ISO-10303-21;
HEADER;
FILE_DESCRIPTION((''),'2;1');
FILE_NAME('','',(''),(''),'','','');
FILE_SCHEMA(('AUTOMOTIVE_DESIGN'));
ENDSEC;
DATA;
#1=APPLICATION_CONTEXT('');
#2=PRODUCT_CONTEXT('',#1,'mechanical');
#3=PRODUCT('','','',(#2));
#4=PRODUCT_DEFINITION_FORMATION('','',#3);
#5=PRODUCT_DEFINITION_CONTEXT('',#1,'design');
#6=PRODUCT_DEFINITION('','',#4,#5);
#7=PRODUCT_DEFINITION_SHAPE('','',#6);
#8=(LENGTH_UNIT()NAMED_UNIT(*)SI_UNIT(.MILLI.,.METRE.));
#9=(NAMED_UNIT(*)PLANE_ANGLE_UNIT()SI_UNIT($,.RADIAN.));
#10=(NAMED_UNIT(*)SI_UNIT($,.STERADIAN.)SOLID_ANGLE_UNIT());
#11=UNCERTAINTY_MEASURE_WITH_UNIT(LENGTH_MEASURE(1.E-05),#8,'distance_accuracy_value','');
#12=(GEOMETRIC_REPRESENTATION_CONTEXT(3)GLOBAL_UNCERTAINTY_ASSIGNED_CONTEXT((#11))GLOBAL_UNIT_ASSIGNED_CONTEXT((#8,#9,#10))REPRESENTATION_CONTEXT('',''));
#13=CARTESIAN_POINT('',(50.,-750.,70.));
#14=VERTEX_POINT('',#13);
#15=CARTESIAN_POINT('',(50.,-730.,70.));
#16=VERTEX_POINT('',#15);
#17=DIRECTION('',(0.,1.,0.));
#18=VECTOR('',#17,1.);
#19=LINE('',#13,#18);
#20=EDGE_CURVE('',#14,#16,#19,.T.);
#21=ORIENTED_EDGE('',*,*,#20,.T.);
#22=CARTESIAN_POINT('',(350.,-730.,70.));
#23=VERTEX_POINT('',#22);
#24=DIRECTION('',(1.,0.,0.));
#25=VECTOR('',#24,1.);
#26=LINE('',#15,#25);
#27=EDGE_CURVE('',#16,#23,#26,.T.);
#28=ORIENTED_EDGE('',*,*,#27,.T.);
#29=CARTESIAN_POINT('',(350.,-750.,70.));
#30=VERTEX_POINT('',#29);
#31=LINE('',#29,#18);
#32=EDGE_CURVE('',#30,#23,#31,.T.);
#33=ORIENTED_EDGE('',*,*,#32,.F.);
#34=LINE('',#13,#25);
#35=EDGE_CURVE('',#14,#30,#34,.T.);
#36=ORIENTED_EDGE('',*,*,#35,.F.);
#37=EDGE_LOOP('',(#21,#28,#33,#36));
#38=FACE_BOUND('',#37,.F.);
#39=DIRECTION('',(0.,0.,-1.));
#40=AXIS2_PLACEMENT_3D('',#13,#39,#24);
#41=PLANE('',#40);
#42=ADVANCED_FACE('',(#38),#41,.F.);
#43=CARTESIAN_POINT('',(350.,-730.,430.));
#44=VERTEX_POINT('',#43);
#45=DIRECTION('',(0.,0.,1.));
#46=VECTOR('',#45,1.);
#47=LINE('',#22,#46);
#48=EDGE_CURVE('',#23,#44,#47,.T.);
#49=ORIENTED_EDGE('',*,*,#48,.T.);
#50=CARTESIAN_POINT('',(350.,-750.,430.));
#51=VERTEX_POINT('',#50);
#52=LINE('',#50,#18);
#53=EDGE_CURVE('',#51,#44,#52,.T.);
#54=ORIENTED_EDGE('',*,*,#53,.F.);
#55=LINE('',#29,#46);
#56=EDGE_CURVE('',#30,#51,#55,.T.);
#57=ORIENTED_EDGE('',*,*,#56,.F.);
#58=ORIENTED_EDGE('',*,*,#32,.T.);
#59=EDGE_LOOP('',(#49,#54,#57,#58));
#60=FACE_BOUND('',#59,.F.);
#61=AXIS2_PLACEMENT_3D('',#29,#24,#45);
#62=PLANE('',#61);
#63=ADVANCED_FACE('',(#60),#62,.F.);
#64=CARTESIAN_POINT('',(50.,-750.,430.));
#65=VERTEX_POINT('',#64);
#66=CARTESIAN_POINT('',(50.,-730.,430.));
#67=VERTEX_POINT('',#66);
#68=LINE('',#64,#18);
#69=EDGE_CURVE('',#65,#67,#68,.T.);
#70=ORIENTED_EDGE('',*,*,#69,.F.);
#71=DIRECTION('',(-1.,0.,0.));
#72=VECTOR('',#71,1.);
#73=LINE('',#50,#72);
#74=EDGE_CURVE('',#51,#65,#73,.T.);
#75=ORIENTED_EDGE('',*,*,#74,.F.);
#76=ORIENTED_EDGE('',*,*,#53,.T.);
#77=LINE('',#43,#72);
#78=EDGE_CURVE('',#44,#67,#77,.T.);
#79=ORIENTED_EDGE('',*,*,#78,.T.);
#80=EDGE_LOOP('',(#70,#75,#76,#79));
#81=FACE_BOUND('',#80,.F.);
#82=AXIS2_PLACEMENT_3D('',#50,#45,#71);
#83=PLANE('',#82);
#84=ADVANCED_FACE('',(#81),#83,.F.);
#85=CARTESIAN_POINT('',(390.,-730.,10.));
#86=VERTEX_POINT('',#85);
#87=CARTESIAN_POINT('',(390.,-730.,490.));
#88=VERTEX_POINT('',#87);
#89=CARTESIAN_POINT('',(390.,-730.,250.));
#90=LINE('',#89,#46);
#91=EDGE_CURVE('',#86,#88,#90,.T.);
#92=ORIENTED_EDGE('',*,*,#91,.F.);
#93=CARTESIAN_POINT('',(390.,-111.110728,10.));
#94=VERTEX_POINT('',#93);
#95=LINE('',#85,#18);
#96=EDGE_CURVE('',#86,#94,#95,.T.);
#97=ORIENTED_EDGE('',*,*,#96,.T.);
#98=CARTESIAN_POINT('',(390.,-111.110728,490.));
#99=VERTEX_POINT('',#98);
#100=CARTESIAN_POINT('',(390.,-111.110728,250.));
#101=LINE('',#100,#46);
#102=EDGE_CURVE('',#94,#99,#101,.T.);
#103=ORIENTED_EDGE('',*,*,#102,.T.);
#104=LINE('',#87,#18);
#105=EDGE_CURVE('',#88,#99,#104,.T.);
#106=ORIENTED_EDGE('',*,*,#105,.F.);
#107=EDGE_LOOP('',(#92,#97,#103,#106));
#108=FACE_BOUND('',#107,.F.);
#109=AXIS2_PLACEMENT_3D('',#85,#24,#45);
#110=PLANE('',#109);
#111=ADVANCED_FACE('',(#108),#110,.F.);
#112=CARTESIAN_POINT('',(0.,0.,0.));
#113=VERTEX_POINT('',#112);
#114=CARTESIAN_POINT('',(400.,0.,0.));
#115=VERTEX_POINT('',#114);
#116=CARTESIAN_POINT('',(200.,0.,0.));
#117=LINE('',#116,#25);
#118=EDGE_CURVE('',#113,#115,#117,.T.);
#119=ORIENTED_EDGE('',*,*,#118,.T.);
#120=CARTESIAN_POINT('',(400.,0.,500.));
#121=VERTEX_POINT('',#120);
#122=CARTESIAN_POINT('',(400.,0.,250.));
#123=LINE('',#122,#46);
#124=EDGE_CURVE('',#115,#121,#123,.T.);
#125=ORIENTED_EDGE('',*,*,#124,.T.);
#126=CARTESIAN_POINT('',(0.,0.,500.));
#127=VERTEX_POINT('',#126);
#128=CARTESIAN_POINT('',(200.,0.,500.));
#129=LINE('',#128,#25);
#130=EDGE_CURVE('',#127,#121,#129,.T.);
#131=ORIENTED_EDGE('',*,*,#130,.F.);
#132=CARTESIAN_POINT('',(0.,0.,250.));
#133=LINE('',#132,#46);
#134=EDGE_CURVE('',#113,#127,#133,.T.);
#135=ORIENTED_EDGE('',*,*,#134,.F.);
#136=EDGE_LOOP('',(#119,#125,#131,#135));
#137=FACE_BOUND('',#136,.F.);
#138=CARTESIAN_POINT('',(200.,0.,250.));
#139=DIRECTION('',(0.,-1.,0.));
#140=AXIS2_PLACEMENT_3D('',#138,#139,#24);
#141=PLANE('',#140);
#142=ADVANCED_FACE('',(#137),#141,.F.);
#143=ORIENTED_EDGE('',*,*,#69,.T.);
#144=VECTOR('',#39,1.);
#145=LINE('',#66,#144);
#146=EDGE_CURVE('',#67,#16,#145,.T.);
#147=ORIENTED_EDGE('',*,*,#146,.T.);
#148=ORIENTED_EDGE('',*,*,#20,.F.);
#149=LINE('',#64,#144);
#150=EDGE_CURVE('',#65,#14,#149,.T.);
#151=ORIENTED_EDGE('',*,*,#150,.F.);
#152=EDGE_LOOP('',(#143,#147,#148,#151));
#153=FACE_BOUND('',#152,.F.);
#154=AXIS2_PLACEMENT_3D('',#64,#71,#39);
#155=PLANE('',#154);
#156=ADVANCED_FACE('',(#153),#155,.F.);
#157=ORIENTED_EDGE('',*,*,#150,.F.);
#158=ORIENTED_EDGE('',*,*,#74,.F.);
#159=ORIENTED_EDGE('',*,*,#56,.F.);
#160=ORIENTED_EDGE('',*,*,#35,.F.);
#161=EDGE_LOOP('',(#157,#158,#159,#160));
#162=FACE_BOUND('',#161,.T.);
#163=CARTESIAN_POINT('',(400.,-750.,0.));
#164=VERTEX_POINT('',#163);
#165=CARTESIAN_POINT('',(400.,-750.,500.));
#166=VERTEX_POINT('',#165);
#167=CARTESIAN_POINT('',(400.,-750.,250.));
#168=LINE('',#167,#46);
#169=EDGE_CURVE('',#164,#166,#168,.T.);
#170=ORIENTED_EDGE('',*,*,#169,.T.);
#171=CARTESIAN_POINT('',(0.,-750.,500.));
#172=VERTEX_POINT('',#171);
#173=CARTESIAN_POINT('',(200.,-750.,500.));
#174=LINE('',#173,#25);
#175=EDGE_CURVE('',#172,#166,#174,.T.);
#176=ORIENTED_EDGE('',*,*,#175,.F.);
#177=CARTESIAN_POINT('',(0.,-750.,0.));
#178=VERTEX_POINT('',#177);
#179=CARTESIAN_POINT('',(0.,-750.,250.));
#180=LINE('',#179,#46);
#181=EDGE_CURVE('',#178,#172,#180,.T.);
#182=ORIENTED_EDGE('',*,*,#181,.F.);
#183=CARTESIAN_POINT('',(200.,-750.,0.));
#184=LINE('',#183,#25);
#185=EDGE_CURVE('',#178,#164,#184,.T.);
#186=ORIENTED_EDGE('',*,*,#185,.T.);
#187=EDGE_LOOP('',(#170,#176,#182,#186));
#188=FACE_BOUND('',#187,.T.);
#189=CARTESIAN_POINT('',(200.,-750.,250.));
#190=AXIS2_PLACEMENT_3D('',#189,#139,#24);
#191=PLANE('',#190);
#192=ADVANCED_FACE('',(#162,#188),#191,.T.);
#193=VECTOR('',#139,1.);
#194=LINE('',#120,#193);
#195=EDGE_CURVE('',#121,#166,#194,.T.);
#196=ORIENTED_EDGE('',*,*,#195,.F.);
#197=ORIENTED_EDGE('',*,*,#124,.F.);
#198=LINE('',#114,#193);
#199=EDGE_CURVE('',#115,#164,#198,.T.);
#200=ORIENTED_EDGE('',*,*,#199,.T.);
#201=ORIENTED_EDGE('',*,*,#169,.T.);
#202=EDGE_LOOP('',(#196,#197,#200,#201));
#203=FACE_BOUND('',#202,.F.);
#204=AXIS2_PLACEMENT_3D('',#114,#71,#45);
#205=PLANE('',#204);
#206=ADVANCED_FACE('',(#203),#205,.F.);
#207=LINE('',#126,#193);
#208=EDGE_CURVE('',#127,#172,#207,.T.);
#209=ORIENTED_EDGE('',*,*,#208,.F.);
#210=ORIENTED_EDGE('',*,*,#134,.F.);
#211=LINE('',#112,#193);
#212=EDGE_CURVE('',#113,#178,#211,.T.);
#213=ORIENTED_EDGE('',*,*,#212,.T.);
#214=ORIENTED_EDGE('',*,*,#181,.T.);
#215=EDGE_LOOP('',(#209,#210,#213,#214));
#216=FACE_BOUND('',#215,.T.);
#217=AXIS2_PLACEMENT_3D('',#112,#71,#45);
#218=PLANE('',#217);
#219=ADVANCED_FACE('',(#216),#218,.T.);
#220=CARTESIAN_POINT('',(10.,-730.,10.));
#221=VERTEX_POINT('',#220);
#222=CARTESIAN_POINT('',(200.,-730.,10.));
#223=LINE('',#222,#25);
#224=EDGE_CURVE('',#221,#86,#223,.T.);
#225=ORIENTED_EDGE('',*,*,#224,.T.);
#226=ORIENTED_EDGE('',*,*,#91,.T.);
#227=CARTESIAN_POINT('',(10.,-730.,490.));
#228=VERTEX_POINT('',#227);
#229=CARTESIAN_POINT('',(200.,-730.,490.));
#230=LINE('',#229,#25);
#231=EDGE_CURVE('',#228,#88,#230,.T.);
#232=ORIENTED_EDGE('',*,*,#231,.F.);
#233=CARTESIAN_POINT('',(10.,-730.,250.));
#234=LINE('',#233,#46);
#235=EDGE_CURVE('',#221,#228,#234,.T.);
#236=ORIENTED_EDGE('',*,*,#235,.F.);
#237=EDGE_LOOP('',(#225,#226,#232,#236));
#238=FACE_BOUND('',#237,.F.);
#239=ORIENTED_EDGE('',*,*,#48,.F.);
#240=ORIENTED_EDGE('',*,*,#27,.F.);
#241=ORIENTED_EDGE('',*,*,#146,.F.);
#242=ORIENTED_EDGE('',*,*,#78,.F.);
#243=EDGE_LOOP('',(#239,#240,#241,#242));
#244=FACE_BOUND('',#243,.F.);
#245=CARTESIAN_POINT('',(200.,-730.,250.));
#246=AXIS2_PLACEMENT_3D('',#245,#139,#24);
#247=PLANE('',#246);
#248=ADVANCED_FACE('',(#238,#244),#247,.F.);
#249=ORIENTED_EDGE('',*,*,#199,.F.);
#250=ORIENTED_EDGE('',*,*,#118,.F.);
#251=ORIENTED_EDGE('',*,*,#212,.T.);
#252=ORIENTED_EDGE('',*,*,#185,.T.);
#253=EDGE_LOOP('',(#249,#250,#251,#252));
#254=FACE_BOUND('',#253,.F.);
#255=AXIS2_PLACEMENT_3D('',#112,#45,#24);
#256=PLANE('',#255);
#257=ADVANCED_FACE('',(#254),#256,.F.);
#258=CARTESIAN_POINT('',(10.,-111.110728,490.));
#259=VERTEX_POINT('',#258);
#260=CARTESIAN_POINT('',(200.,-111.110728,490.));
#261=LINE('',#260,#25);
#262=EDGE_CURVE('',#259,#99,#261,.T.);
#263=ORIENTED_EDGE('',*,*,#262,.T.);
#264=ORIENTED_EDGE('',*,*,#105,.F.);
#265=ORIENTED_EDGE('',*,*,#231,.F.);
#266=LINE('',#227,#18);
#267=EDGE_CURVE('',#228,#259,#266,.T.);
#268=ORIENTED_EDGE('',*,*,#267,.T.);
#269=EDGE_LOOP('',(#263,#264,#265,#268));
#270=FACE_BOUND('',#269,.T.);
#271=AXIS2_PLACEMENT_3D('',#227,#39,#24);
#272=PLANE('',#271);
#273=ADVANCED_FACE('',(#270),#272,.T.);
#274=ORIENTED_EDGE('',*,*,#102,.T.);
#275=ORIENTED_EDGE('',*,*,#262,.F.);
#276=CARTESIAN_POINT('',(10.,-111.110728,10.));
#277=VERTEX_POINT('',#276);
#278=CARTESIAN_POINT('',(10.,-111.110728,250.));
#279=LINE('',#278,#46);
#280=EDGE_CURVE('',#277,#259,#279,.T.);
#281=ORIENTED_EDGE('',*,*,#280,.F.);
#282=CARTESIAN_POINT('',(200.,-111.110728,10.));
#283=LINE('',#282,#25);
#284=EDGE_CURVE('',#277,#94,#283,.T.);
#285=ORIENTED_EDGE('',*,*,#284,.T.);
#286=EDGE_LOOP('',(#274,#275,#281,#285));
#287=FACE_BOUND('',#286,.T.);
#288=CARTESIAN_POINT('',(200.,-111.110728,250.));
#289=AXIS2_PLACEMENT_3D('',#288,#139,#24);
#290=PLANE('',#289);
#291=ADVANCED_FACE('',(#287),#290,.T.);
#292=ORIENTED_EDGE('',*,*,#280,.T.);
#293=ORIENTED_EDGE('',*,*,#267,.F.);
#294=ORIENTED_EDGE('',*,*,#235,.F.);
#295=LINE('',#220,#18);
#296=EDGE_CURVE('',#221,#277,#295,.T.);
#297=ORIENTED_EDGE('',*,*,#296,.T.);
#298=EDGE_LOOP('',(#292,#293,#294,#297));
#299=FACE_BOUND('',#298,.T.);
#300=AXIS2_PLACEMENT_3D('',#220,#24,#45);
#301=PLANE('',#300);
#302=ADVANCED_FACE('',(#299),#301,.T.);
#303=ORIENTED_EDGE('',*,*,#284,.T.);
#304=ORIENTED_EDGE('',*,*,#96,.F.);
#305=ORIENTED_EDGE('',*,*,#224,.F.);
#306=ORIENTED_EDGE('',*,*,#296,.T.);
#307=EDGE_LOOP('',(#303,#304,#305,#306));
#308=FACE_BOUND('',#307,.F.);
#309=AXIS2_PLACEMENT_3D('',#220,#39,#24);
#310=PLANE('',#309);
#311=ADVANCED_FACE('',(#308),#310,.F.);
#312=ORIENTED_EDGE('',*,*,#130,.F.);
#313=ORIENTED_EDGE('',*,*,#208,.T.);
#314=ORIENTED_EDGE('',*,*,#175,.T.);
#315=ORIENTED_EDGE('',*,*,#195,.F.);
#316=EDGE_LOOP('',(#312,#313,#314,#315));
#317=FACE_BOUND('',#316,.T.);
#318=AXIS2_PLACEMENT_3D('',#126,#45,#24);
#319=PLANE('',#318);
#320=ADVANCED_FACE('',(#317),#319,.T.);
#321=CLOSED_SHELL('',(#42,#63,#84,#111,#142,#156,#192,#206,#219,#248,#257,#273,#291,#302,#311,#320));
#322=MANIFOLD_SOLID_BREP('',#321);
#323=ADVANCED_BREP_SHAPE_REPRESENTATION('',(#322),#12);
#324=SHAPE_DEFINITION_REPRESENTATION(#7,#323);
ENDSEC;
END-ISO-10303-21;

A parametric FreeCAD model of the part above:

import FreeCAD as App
import Part
import Sketcher


def add_polygon(sketch, points):
    """Adds a closed chain of lines whose ends are joined by coincident constraints."""
    first, n = sketch.GeometryCount, len(points)
    for a, b in zip(points, points[1:] + points[:1]):
        sketch.addGeometry(Part.LineSegment(App.Vector(*a, 0), App.Vector(*b, 0)), False)
    for i in range(n):
        sketch.addConstraint(Sketcher.Constraint("Coincident", first + i, 2, first + (i + 1) % n, 1))

doc = App.newDocument("Part")
params = doc.addObject("Spreadsheet::Sheet", "Params")
for row, (alias, value) in enumerate([
    ("sketch1_width", "400 mm"),
    ("sketch1_height", "500 mm"),
    ("pad1_length", "750 mm"),
    ("sketch2_width", "300 mm"),
    ("sketch2_height", "360 mm"),
    ("pocket1_length", "20 mm"),
    ("sketch3_width", "380 mm"),
    ("sketch3_height", "480 mm"),
    ("pocket2_length", "618.889272 mm"),
], start=1):
    params.set(f"A{row}", alias)
    params.set(f"B{row}", "=" + value)
    params.setAlias(f"B{row}", alias)

body = doc.addObject("PartDesign::Body", "Body")

# Sketch on XZ plane
sketch1 = body.newObject("Sketcher::SketchObject", "Sketch")
sketch1.AttachmentSupport = (doc.getObject("XZ_Plane"), [""])
sketch1.MapMode = "FlatFace"
add_polygon(sketch1, [(0, 500), (0, 0), (400, 0), (400, 500)])  # lines 0-3
sketch1.addConstraint([
    Sketcher.Constraint("Vertical", 0),
    Sketcher.Constraint("Horizontal", 1),
    Sketcher.Constraint("Vertical", 2),
    Sketcher.Constraint("Horizontal", 3),
    Sketcher.Constraint("Coincident", 0, 2, -1, 1),
    Sketcher.Constraint("DistanceX", 1, 1, 1, 2, 400.0),
    Sketcher.Constraint("DistanceY", 0, 2, 0, 1, 500.0),
])
sketch1.setExpression("Constraints[9]", "Params.sketch1_width")
sketch1.setExpression("Constraints[10]", "Params.sketch1_height")
pad1 = body.newObject("PartDesign::Pad", "Pad")
pad1.Profile = sketch1
pad1.setExpression("Length", "Params.pad1_length")

# Sketch on XZ plane
sketch2 = body.newObject("Sketcher::SketchObject", "Sketch001")
sketch2.AttachmentSupport = (doc.getObject("XZ_Plane"), [""])
sketch2.MapMode = "FlatFace"
sketch2.AttachmentOffset = App.Placement(App.Vector(0, 0, 750), App.Rotation())
add_polygon(sketch2, [(50, 70), (350, 70), (350, 430), (50, 430)])  # lines 0-3
sketch2.addConstraint([
    Sketcher.Constraint("Horizontal", 0),
    Sketcher.Constraint("Vertical", 1),
    Sketcher.Constraint("Horizontal", 2),
    Sketcher.Constraint("Vertical", 3),
    Sketcher.Constraint("DistanceX", 0, 1, 0, 2, 300.0),
    Sketcher.Constraint("DistanceY", 1, 1, 1, 2, 360.0),
    Sketcher.Constraint("DistanceX", -1, 1, 0, 2, 350.0),
    Sketcher.Constraint("DistanceY", -1, 1, 0, 2, 70.0),
])
sketch2.setExpression("Constraints[8]", "Params.sketch2_width")
sketch2.setExpression("Constraints[9]", "Params.sketch2_height")
pocket1 = body.newObject("PartDesign::Pocket", "Pocket")
pocket1.Profile = sketch2
pocket1.setExpression("Length", "Params.pocket1_length")

# Sketch on XZ plane
sketch3 = body.newObject("Sketcher::SketchObject", "Sketch002")
sketch3.AttachmentSupport = (doc.getObject("XZ_Plane"), [""])
sketch3.MapMode = "FlatFace"
sketch3.AttachmentOffset = App.Placement(App.Vector(0, 0, 730), App.Rotation())
add_polygon(sketch3, [(10, 490), (10, 10), (390, 10), (390, 490)])  # lines 0-3
sketch3.addConstraint([
    Sketcher.Constraint("Vertical", 0),
    Sketcher.Constraint("Horizontal", 1),
    Sketcher.Constraint("Vertical", 2),
    Sketcher.Constraint("Horizontal", 3),
    Sketcher.Constraint("DistanceX", 1, 1, 1, 2, 380.0),
    Sketcher.Constraint("DistanceY", 0, 2, 0, 1, 480.0),
    Sketcher.Constraint("DistanceX", -1, 1, 0, 2, 10.0),
    Sketcher.Constraint("DistanceY", -1, 1, 0, 2, 10.0),
])
sketch3.setExpression("Constraints[8]", "Params.sketch3_width")
sketch3.setExpression("Constraints[9]", "Params.sketch3_height")
pocket2 = body.newObject("PartDesign::Pocket", "Pocket001")
pocket2.Profile = sketch3
pocket2.setExpression("Length", "Params.pocket2_length")

doc.recompute()
